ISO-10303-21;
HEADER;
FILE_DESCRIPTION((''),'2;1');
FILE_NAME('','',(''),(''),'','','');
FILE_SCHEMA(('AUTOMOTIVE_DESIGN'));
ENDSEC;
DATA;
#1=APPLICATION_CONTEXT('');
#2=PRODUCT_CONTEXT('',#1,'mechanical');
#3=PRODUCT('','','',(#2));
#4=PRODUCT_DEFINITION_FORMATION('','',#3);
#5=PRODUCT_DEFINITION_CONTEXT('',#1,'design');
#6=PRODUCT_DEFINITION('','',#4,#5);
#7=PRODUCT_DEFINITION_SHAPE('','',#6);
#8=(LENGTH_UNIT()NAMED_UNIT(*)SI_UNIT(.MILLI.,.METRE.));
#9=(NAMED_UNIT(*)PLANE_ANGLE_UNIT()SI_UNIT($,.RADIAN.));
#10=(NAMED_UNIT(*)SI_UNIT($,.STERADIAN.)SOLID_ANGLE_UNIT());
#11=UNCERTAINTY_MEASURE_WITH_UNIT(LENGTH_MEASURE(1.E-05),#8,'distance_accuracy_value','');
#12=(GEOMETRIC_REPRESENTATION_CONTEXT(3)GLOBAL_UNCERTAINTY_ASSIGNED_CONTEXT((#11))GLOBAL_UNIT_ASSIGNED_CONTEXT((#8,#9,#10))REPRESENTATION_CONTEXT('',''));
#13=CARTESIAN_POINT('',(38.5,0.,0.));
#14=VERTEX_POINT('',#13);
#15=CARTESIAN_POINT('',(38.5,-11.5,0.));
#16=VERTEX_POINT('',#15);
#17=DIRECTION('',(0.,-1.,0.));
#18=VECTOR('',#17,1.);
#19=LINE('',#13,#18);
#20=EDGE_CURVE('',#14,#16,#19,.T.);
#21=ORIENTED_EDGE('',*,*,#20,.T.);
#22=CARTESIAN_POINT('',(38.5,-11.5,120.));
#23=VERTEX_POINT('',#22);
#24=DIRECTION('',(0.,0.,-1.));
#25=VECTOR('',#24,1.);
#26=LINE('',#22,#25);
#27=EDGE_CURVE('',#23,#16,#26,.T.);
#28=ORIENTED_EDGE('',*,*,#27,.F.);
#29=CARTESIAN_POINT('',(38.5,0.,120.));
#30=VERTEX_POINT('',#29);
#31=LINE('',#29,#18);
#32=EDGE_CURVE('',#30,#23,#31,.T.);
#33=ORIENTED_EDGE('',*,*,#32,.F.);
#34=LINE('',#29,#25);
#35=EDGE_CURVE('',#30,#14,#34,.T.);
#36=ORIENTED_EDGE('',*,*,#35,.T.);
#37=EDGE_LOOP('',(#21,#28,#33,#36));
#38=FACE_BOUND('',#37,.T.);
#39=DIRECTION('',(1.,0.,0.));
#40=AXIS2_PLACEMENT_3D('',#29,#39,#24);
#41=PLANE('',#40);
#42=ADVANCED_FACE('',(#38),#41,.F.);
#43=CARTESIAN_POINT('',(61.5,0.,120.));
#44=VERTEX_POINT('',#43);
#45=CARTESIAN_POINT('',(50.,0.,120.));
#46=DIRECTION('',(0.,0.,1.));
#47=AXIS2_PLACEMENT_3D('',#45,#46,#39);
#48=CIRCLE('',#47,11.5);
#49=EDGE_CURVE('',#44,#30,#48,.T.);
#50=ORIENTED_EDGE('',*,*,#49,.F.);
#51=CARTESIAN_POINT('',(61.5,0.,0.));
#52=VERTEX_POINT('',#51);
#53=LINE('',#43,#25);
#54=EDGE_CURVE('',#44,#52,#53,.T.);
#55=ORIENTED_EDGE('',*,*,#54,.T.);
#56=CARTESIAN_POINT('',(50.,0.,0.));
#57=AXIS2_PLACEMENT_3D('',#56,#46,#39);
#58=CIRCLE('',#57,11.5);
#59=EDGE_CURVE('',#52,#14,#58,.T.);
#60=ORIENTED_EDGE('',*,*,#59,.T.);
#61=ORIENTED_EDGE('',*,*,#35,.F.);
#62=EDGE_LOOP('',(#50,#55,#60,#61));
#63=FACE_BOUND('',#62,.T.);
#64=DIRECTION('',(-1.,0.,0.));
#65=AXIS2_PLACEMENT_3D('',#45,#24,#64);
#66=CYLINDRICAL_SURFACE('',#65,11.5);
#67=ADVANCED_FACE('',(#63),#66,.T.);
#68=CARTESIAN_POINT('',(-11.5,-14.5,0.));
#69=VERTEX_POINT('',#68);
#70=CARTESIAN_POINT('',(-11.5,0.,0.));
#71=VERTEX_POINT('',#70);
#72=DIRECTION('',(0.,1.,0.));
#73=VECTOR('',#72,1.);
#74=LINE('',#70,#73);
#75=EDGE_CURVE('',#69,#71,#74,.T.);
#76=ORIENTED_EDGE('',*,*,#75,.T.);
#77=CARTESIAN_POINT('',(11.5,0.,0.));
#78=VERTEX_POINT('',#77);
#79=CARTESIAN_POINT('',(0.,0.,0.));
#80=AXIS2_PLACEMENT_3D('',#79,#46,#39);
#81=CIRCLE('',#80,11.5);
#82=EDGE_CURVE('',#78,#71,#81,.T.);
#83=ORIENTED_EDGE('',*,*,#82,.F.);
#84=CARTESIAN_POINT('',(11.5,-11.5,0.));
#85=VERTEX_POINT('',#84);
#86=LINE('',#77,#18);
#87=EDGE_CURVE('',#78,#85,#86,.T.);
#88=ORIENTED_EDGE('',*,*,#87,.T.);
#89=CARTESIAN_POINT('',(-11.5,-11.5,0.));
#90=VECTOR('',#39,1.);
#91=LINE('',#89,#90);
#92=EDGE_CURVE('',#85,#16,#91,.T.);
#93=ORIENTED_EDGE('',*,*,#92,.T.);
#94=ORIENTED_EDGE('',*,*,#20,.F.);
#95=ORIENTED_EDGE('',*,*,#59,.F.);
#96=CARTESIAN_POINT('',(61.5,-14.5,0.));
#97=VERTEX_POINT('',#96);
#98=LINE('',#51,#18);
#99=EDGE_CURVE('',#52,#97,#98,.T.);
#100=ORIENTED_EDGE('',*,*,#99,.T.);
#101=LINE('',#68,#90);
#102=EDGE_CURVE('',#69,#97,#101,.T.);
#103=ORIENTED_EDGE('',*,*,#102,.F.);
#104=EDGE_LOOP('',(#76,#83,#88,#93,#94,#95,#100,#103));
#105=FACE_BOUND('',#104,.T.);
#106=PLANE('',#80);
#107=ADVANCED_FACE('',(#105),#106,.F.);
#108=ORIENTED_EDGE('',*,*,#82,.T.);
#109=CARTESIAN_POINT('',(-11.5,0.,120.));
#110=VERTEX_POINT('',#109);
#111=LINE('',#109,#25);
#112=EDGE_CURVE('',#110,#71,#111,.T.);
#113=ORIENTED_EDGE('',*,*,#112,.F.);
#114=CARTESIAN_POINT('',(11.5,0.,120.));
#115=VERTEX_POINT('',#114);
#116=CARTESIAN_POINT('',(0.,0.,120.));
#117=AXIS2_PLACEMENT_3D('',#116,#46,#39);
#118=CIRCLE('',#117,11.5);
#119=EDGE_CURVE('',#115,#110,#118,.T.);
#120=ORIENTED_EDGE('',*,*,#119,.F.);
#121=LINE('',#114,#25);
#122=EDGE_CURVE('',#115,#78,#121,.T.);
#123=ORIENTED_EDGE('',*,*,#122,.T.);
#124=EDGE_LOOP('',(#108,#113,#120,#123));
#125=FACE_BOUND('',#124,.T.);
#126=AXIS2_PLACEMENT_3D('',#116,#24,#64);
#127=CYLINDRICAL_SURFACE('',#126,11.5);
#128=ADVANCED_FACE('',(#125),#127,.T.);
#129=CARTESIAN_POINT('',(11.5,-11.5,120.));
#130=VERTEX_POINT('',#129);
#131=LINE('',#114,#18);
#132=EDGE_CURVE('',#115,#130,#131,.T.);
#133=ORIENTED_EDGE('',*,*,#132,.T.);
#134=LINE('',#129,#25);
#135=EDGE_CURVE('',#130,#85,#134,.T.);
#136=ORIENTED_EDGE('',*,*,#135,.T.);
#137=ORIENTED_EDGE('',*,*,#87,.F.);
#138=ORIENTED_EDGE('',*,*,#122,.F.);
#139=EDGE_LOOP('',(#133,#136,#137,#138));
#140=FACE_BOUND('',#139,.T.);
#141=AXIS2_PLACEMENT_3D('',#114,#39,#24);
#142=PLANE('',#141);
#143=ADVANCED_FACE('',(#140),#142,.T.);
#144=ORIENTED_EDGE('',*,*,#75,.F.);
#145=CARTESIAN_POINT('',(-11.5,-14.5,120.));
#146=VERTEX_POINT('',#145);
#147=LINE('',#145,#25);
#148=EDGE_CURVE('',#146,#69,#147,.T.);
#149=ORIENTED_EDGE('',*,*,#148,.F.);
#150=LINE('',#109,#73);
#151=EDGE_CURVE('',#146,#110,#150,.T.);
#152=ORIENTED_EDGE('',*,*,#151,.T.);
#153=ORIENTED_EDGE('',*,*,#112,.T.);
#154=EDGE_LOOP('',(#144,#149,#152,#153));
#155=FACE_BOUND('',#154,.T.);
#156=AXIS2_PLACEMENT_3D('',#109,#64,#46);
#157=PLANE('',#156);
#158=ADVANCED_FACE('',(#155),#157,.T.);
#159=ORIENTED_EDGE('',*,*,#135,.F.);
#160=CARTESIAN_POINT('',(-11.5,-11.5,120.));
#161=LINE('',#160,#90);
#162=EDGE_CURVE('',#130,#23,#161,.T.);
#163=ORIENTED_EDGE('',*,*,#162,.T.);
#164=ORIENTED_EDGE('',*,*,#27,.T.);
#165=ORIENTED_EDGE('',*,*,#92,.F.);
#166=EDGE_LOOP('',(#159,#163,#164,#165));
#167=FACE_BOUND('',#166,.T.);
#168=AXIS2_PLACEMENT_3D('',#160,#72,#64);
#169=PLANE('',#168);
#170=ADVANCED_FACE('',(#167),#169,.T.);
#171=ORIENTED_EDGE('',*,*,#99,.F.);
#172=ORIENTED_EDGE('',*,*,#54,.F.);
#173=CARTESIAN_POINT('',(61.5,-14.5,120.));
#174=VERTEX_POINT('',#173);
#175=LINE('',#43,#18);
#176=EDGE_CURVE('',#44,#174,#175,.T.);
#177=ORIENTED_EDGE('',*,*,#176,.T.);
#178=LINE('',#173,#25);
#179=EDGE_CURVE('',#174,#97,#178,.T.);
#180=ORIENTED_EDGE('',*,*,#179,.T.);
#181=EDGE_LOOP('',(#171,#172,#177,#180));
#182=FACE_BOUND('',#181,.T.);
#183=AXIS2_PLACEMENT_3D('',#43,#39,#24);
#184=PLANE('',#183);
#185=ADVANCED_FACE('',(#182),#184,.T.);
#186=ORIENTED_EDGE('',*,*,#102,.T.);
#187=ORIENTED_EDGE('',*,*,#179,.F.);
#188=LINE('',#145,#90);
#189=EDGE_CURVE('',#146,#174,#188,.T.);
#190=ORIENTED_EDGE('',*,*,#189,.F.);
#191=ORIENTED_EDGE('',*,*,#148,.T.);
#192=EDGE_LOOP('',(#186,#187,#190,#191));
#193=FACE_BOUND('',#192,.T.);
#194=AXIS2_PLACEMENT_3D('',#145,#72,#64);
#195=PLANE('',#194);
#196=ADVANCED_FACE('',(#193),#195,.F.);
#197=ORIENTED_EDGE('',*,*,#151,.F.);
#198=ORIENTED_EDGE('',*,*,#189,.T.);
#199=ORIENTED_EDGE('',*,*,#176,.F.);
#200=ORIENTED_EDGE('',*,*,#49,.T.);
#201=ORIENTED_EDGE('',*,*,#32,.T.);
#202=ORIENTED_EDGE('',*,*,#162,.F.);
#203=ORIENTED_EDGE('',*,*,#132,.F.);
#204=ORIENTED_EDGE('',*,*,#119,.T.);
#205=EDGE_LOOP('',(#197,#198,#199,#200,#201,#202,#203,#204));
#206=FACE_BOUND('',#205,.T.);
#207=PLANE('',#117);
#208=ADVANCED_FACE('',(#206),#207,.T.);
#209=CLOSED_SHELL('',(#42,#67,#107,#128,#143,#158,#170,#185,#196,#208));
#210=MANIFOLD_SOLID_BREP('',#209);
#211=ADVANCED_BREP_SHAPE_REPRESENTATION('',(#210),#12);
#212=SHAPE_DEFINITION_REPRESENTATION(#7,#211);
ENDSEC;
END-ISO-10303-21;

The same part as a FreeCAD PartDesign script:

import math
import FreeCAD as App
import Part
import Sketcher

V = App.Vector
Q = App.Units.Quantity

doc = App.newDocument("Part")
body = doc.addObject("PartDesign::Body", "Body")

# Sketch on XY plane
sketch1 = body.newObject("Sketcher::SketchObject", "Sketch")
sketch1.AttachmentSupport = (doc.getObject("XY_Plane"), [""])
sketch1.MapMode = "FlatFace"
sketch1.addGeometry([
    Part.ArcOfCircle(Part.Circle(V(0, 0, 0), V(0, 0, 1), 11.5), math.radians(0), math.radians(180)),  # 0
    Part.LineSegment(V(-11.5, 0, 0), V(-11.5, -14.5, 0)),  # 1
    Part.LineSegment(V(-11.5, -14.5, 0), V(61.5, -14.5, 0)),  # 2
    Part.LineSegment(V(61.5, -14.5, 0), V(61.5, 0, 0)),  # 3
    Part.ArcOfCircle(Part.Circle(V(50, 0, 0), V(0, 0, 1), 11.5), math.radians(0), math.radians(180)),  # 4
    Part.LineSegment(V(38.5, 0, 0), V(38.5, -11.5, 0)),  # 5
    Part.LineSegment(V(38.5, -11.5, 0), V(11.5, -11.5, 0)),  # 6
    Part.LineSegment(V(11.5, -11.5, 0), V(11.5, 0, 0)),  # 7
], False)
sketch1.addConstraint([
    Sketcher.Constraint("Tangent", 0, 2, 1, 1),
    Sketcher.Constraint("Coincident", 1, 2, 2, 1),
    Sketcher.Constraint("Coincident", 2, 2, 3, 1),
    Sketcher.Constraint("Tangent", 3, 2, 4, 1),
    Sketcher.Constraint("Tangent", 4, 2, 5, 1),
    Sketcher.Constraint("Coincident", 5, 2, 6, 1),
    Sketcher.Constraint("Coincident", 6, 2, 7, 1),
    Sketcher.Constraint("Tangent", 7, 2, 0, 1),
    Sketcher.Constraint("Vertical", 1),
    Sketcher.Constraint("Horizontal", 2),
    Sketcher.Constraint("Vertical", 3),
    Sketcher.Constraint("Vertical", 5),
    Sketcher.Constraint("Horizontal", 6),
    Sketcher.Constraint("Vertical", 7),
    Sketcher.Constraint("Coincident", 0, 3, -1, 1),
    Sketcher.Constraint("Equal", 0, 4),
    Sketcher.Constraint("PointOnObject", 4, 3, -1),
    Sketcher.Constraint("Radius", 0, Q("11.5 mm")),
    Sketcher.Constraint("DistanceX", 2, 1, 2, 2, Q("73 mm")),
    Sketcher.Constraint("DistanceY", 1, 2, 1, 1, Q("14.5 mm")),
    Sketcher.Constraint("DistanceY", 5, 2, 5, 1, Q("11.5 mm")),
])
pad1 = body.newObject("PartDesign::Pad", "Pad")
pad1.Profile = sketch1
pad1.Length = 120

doc.recompute()
